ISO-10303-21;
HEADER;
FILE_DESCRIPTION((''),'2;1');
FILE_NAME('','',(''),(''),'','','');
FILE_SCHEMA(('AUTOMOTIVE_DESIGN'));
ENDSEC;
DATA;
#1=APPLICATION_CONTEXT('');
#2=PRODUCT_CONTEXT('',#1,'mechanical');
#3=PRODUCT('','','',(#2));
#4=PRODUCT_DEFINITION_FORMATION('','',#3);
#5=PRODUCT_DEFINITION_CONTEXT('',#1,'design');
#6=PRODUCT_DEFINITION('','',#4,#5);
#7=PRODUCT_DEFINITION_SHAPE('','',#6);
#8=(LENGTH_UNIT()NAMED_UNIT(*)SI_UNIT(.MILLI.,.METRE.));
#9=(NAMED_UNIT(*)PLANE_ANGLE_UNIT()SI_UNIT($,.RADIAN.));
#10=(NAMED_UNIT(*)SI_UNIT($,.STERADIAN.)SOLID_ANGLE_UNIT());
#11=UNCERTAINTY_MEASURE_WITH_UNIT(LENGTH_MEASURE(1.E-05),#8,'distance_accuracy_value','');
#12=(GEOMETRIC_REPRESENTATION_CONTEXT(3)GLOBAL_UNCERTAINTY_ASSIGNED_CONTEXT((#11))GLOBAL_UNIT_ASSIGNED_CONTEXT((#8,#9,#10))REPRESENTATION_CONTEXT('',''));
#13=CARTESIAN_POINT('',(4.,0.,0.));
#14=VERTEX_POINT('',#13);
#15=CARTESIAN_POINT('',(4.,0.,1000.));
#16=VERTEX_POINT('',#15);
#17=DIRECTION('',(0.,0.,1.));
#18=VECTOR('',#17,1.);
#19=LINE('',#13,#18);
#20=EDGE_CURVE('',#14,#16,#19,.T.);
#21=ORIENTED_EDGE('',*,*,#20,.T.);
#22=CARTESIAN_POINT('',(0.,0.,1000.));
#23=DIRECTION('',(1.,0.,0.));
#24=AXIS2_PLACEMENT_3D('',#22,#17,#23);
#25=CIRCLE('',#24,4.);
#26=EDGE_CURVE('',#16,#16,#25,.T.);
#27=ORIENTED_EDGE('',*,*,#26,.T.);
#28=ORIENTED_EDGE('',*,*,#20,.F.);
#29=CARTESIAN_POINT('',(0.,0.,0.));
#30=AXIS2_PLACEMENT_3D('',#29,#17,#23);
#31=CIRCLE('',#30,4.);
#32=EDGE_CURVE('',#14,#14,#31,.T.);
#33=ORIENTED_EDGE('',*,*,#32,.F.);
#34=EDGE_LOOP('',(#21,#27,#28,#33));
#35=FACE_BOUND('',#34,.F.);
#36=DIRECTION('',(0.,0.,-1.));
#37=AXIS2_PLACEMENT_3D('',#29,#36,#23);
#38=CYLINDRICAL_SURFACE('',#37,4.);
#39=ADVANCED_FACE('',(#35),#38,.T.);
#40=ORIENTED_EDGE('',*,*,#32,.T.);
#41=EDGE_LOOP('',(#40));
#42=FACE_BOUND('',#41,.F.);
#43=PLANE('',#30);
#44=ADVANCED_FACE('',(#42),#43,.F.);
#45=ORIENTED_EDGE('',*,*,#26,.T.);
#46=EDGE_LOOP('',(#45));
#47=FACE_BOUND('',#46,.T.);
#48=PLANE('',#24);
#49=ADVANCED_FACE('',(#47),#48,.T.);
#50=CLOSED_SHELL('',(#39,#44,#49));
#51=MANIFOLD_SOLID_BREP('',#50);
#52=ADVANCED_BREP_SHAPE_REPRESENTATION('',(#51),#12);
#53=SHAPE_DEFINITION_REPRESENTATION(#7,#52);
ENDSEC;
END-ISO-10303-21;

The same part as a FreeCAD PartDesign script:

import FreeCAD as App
import Part
import Sketcher

V = App.Vector

doc = App.newDocument("Part")
body = doc.addObject("PartDesign::Body", "Body")

# Sketch on XY plane
sketch1 = body.newObject("Sketcher::SketchObject", "Sketch")
sketch1.AttachmentSupport = (doc.getObject("XY_Plane"), [""])
sketch1.MapMode = "FlatFace"
sketch1.addGeometry(Part.Circle(V(0, 0, 0), V(0, 0, 1), 4), False)
sketch1.addConstraint(Sketcher.Constraint("Coincident", 0, 3, -1, 1))
sketch1.addConstraint(Sketcher.Constraint("Diameter", 0, 8.0))
pad1 = body.newObject("PartDesign::Pad", "Pad")
pad1.Profile = sketch1
pad1.Length = 1000

doc.recompute()
